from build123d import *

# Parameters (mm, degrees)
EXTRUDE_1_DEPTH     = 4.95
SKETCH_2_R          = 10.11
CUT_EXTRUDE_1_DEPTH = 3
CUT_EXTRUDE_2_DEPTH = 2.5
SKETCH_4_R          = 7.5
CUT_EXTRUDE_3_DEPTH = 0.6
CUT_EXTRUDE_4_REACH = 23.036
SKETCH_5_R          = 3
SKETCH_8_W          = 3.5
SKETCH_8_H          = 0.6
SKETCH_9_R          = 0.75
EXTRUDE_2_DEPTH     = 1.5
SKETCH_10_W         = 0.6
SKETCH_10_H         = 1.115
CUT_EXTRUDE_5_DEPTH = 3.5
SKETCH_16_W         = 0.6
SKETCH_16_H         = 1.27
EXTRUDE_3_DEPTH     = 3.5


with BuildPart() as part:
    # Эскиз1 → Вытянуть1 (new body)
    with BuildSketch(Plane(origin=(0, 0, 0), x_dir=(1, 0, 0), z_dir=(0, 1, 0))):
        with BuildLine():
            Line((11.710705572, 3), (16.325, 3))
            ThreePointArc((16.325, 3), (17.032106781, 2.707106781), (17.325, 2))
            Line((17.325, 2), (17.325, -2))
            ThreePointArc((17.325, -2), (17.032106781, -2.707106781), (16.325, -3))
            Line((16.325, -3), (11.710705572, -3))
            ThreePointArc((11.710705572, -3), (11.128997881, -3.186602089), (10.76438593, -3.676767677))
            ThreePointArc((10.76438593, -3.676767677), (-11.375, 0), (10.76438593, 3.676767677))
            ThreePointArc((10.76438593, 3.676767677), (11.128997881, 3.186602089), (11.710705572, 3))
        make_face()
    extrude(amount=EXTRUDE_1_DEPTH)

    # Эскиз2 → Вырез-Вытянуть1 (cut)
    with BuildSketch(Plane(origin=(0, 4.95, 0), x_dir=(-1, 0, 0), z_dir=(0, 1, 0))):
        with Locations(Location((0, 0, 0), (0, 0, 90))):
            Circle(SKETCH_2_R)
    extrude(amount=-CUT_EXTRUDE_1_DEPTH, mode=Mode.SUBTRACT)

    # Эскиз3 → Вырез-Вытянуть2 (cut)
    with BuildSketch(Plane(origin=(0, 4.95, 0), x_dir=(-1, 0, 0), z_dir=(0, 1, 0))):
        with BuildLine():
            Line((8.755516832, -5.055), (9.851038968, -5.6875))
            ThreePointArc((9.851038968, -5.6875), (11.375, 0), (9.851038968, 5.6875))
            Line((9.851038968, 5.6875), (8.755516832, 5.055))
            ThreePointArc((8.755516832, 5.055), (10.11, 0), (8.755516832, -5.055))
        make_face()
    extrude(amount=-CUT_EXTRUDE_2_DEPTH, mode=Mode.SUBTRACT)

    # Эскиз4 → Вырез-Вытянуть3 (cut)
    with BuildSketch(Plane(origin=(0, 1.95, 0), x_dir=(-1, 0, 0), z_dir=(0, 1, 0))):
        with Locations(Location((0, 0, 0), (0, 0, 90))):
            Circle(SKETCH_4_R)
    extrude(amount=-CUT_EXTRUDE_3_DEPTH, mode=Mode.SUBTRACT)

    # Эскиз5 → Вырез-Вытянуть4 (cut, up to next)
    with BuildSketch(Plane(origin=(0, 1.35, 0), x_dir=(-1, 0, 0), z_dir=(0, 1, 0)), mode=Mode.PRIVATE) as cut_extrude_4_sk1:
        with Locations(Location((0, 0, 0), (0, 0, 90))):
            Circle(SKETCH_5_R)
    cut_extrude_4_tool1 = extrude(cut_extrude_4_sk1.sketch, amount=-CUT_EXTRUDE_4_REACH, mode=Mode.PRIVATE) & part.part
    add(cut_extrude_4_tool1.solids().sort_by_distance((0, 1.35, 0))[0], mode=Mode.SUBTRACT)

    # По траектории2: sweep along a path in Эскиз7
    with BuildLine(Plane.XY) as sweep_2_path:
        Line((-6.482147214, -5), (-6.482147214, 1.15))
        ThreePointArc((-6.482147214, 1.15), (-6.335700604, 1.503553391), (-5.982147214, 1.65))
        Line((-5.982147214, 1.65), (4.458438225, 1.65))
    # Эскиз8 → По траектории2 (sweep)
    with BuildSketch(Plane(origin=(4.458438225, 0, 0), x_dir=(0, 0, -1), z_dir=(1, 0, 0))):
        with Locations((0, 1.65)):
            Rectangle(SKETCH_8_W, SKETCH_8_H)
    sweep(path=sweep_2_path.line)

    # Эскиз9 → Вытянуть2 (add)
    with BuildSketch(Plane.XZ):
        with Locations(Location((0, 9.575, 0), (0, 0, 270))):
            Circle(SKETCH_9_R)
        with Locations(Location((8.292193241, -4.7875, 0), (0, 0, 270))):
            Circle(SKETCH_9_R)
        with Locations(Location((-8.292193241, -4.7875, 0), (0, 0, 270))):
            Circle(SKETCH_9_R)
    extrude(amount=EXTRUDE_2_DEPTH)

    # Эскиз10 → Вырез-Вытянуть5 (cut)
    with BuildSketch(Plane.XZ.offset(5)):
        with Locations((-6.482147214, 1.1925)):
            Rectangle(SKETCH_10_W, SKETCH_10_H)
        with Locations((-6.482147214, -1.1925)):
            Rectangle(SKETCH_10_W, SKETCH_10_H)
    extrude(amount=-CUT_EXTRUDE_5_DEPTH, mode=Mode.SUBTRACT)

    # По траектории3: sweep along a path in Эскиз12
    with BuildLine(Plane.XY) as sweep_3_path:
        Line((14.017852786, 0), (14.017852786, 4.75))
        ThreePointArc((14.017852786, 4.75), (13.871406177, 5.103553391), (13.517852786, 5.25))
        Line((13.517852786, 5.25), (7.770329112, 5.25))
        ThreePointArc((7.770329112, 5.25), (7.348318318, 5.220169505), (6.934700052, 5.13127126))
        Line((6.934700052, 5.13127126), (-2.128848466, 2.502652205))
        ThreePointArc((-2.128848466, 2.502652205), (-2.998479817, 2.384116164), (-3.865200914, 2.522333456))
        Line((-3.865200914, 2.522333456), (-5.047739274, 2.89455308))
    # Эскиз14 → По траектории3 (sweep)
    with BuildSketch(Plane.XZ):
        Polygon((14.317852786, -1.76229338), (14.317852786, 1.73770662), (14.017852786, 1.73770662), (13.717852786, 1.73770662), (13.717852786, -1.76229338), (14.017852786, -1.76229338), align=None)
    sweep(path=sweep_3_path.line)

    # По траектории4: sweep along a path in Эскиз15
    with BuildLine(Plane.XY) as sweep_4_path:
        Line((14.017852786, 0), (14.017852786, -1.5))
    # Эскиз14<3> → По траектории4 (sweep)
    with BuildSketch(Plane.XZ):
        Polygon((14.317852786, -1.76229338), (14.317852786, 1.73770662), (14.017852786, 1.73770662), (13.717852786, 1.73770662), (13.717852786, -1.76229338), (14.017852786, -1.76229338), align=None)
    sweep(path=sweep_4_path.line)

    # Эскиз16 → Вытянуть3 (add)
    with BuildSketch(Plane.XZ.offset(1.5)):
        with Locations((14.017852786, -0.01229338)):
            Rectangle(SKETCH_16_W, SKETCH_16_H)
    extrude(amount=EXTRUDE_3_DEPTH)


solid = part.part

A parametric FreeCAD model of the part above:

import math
import FreeCAD as App
import Part
import Sketcher

V = App.Vector
Q = App.Units.Quantity


def add_polygon(sketch, points):
    """Adds a closed chain of lines whose ends are joined by coincident constraints."""
    first, n = sketch.GeometryCount, len(points)
    for a, b in zip(points, points[1:] + points[:1]):
        sketch.addGeometry(Part.LineSegment(App.Vector(*a, 0), App.Vector(*b, 0)), False)
    for i in range(n):
        sketch.addConstraint(Sketcher.Constraint("Coincident", first + i, 2, first + (i + 1) % n, 1))

doc = App.newDocument("Part")
body = doc.addObject("PartDesign::Body", "Body")

# Sketch on XZ plane
sketch1 = doc.addObject("Sketcher::SketchObject", "Sketch")
body.addObject(sketch1)
sketch1.AttachmentSupport = (doc.XZ_Plane, [""])
sketch1.MapMode = "FlatFace"
sketch1.addGeometry([
    Part.LineSegment(V(16.3, -3, 0), V(11.7, -3, 0)),  # 0
    Part.ArcOfCircle(Part.Circle(V(11.7, -4, 0), V(0, 0, 1), 1), math.radians(90), math.radians(161)),  # 1
    Part.ArcOfCircle(Part.Circle(V(0, 0, 0), V(0, 0, 1), 11.4), math.radians(19), math.radians(341)),  # 2
    Part.ArcOfCircle(Part.Circle(V(11.7, 4, 0), V(0, 0, 1), 1), math.radians(-161), math.radians(-90)),  # 3
    Part.LineSegment(V(11.7, 3, 0), V(16.3, 3, 0)),  # 4
    Part.ArcOfCircle(Part.Circle(V(16.3, 2, 0), V(0, 0, 1), 1), math.radians(0), math.radians(90)),  # 5
    Part.LineSegment(V(17.3, 2, 0), V(17.3, -2, 0)),  # 6
    Part.ArcOfCircle(Part.Circle(V(16.3, -2, 0), V(0, 0, 1), 1), math.radians(-90), math.radians(0)),  # 7
], False)
sketch1.addConstraint([
    Sketcher.Constraint("Tangent", 0, 2, 1, 1),
    Sketcher.Constraint("Tangent", 1, 2, 2, 2),
    Sketcher.Constraint("Tangent", 2, 1, 3, 1),
    Sketcher.Constraint("Tangent", 3, 2, 4, 1),
    Sketcher.Constraint("Tangent", 4, 2, 5, 2),
    Sketcher.Constraint("Tangent", 5, 1, 6, 1),
    Sketcher.Constraint("Tangent", 6, 2, 7, 2),
    Sketcher.Constraint("Tangent", 7, 1, 0, 1),
    Sketcher.Constraint("Horizontal", 0),
    Sketcher.Constraint("Horizontal", 4),
    Sketcher.Constraint("Vertical", 6),
    Sketcher.Constraint("Coincident", 2, 3, -1, 1),
    Sketcher.Constraint("Equal", 1, 3),
    Sketcher.Constraint("Equal", 3, 5),
    Sketcher.Constraint("Equal", 5, 7),
    Sketcher.Constraint("Vertical", 1, 3, 3, 3),
    Sketcher.Constraint("Radius", 1, 1.0),
    Sketcher.Constraint("DistanceY", 6, 2, 6, 1, 4.0),
    Sketcher.Constraint("Radius", 2, 11.375),
    Sketcher.Constraint("DistanceX", -1, 1, 5, 3, 16.325),
])
pad1 = doc.addObject("PartDesign::Pad", "Pad")
body.addObject(pad1)
pad1.Profile = sketch1
pad1.Length = 4.95
pad1.Reversed = True

# Sketch on XZ plane
sketch2 = doc.addObject("Sketcher::SketchObject", "Sketch001")
body.addObject(sketch2)
sketch2.AttachmentSupport = (doc.XZ_Plane, [""])
sketch2.MapMode = "FlatFace"
sketch2.AttachmentOffset = App.Placement(V(0, 0, -4.95), App.Rotation())
sketch2.addGeometry(Part.Circle(V(0, 0, 0), V(0, 0, 1), 10), False)
sketch2.addConstraint([
    Sketcher.Constraint("Coincident", 0, 3, -1, 1),
    Sketcher.Constraint("Diameter", 0, 20.22),
])
pocket1 = doc.addObject("PartDesign::Pocket", "Pocket")
body.addObject(pocket1)
pocket1.Profile = sketch2
pocket1.Length = 3
pocket1.Reversed = True

# Sketch on XZ plane
sketch3 = doc.addObject("Sketcher::SketchObject", "Sketch002")
body.addObject(sketch3)
sketch3.AttachmentSupport = (doc.XZ_Plane, [""])
sketch3.MapMode = "FlatFace"
sketch3.AttachmentOffset = App.Placement(V(0, 0, -4.95), App.Rotation())
sketch3.addGeometry([
    Part.LineSegment(V(-8.8, -5.1, 0), V(-9.9, -5.7, 0)),
    Part.ArcOfCircle(Part.Circle(V(0, 0, 0), V(0, 0, 1), 11.4), math.radians(150), math.radians(210)),
    Part.LineSegment(V(-9.9, 5.7, 0), V(-8.8, 5.1, 0)),
    Part.ArcOfCircle(Part.Circle(V(0, 0, 0), V(0, 0, 1), 10.1), math.radians(150), math.radians(210)),
], False)
sketch3.addConstraint([
    Sketcher.Constraint("Coincident", 0, 2, 1, 2),
    Sketcher.Constraint("Coincident", 1, 1, 2, 1),
    Sketcher.Constraint("Coincident", 2, 2, 3, 1),
    Sketcher.Constraint("Coincident", 3, 2, 0, 1),
    Sketcher.Constraint("Coincident", 1, 3, -1, 1),
    Sketcher.Constraint("Coincident", 3, 3, -1, 1),
    Sketcher.Constraint("Vertical", 0, 2, 1, 1),
    Sketcher.Constraint("Vertical", 2, 2, 3, 2),
    Sketcher.Constraint("Angle", 0, Q("-150 deg")),
    Sketcher.Constraint("Radius", 3, 10.11),
    Sketcher.Constraint("Radius", 1, 11.375),
    Sketcher.Constraint("DistanceY", 3, 2, 2, 2, 10.11),
])
pocket2 = doc.addObject("PartDesign::Pocket", "Pocket001")
body.addObject(pocket2)
pocket2.Profile = sketch3
pocket2.Length = 2.5
pocket2.Reversed = True

# Sketch on XZ plane
sketch4 = doc.addObject("Sketcher::SketchObject", "Sketch003")
body.addObject(sketch4)
sketch4.AttachmentSupport = (doc.XZ_Plane, [""])
sketch4.MapMode = "FlatFace"
sketch4.AttachmentOffset = App.Placement(V(0, 0, -1.95), App.Rotation())
sketch4.addGeometry(Part.Circle(V(0, 0, 0), V(0, 0, 1), 8), False)
sketch4.addConstraint([
    Sketcher.Constraint("Coincident", 0, 3, -1, 1),
    Sketcher.Constraint("Diameter", 0, 15.0),
])
pocket3 = doc.addObject("PartDesign::Pocket", "Pocket002")
body.addObject(pocket3)
pocket3.Profile = sketch4
pocket3.Length = 0.6
pocket3.Reversed = True

# Sketch on XZ plane
sketch5 = doc.addObject("Sketcher::SketchObject", "Sketch004")
body.addObject(sketch5)
sketch5.AttachmentSupport = (doc.XZ_Plane, [""])
sketch5.MapMode = "FlatFace"
sketch5.AttachmentOffset = App.Placement(V(0, 0, -1.35), App.Rotation())
sketch5.addGeometry(Part.Circle(V(0, 0, 0), V(0, 0, 1), 3), False)
sketch5.addConstraint([
    Sketcher.Constraint("Coincident", 0, 3, -1, 1),
    Sketcher.Constraint("Diameter", 0, 6.0),
])
pocket4 = doc.addObject("PartDesign::Pocket", "Pocket003")
body.addObject(pocket4)
pocket4.Profile = sketch5
pocket4.Type = "UpToFirst"
pocket4.Reversed = True

# Sketch on YZ plane
sketch6 = doc.addObject("Sketcher::SketchObject", "Sketch005")
body.addObject(sketch6)
sketch6.AttachmentSupport = (doc.YZ_Plane, [""])
sketch6.MapMode = "FlatFace"
sketch6.AttachmentOffset = App.Placement(V(0, 0, 4.458438), App.Rotation())
add_polygon(sketch6, [(1.9, 1.8), (1.4, 1.8), (1.4, -1.8), (1.9, -1.8)])  # lines 0-3
sketch6.addConstraint([
    Sketcher.Constraint("Horizontal", 0),
    Sketcher.Constraint("Vertical", 1),
    Sketcher.Constraint("Horizontal", 2),
    Sketcher.Constraint("Vertical", 3),
    Sketcher.Constraint("DistanceX", 0, 2, 0, 1, 0.6),
    Sketcher.Constraint("DistanceY", 1, 2, 1, 1, 3.5),
    Sketcher.Constraint("DistanceX", -1, 1, 0, 2, 1.35),
    Sketcher.Constraint("DistanceY", -1, 1, 0, 2, 1.75),
])

# Sketch on XY plane
sketch7 = doc.addObject("Sketcher::SketchObject", "Sketch006")
body.addObject(sketch7)
sketch7.AttachmentSupport = (doc.XY_Plane, [""])
sketch7.MapMode = "FlatFace"
sketch7.addGeometry([
    Part.LineSegment(V(-6.5, -5, 0), V(-6.5, 1.1, 0)),
    Part.ArcOfCircle(Part.Circle(V(-6, 1.1, 0), V(0, 0, 1), 0.5), math.radians(90), math.radians(180)),
    Part.LineSegment(V(-6, 1.6, 0), V(4.5, 1.6, 0)),
], False)
sketch7.addConstraint([
    Sketcher.Constraint("Tangent", 0, 2, 1, 2),
    Sketcher.Constraint("Tangent", 1, 1, 2, 1),
    Sketcher.Constraint("Vertical", 0),
    Sketcher.Constraint("Horizontal", 2),
    Sketcher.Constraint("Radius", 1, 0.5),
    Sketcher.Constraint("DistanceY", 0, 1, -1, 1, 5.0),
    Sketcher.Constraint("DistanceY", 0, 1, 0, 2, 6.15),
    Sketcher.Constraint("DistanceX", 2, 1, 2, 2, 10.440585),
    Sketcher.Constraint("DistanceX", -1, 1, 2, 2, 4.458438),
])
doc.recompute()

additivepipe = doc.addObject("PartDesign::AdditivePipe", "AdditivePipe")
body.addObject(additivepipe)
additivepipe.Profile = sketch6
additivepipe.Spine = (sketch7, ["Edge1", "Edge2", "Edge3"])

# Sketch on XZ plane
sketch8 = doc.addObject("Sketcher::SketchObject", "Sketch007")
body.addObject(sketch8)
sketch8.AttachmentSupport = (doc.XZ_Plane, [""])
sketch8.MapMode = "FlatFace"
sketch8.addGeometry([
    Part.Circle(V(0, 9.6, 0), V(0, 0, 1), 0.8),
    Part.Circle(V(8.3, -4.8, 0), V(0, 0, 1), 0.8),
    Part.Circle(V(-8.3, -4.8, 0), V(0, 0, 1), 0.8),
], False)
sketch8.addConstraint([
    Sketcher.Constraint("Equal", 0, 1),
    Sketcher.Constraint("Equal", 1, 2),
    Sketcher.Constraint("Symmetric", 1, 3, 2, 3, -2),
    Sketcher.Constraint("PointOnObject", 0, 3, -2),
    Sketcher.Constraint("Diameter", 0, 1.5),
    Sketcher.Constraint("DistanceY", -1, 1, 0, 3, 9.575),
    Sketcher.Constraint("DistanceY", 1, 3, -1, 1, 4.7875),
    Sketcher.Constraint("DistanceX", -1, 1, 1, 3, 8.292193),
])
pad2 = doc.addObject("PartDesign::Pad", "Pad001")
body.addObject(pad2)
pad2.Profile = sketch8
pad2.Length = 1.5

# Sketch on XZ plane
sketch9 = doc.addObject("Sketcher::SketchObject", "Sketch008")
body.addObject(sketch9)
sketch9.AttachmentSupport = (doc.XZ_Plane, [""])
sketch9.MapMode = "FlatFace"
sketch9.AttachmentOffset = App.Placement(V(0, 0, 5), App.Rotation())
add_polygon(sketch9, [(-6.8, 1.8), (-6.8, 0.6), (-6.2, 0.6), (-6.2, 1.8)])  # lines 0-3
add_polygon(sketch9, [(-6.8, -0.6), (-6.8, -1.8), (-6.2, -1.8), (-6.2, -0.6)])  # lines 4-7
sketch9.addConstraint([
    Sketcher.Constraint("Vertical", 0),
    Sketcher.Constraint("Horizontal", 1),
    Sketcher.Constraint("Vertical", 2),
    Sketcher.Constraint("Horizontal", 3),
    Sketcher.Constraint("Vertical", 4),
    Sketcher.Constraint("Horizontal", 5),
    Sketcher.Constraint("Vertical", 6),
    Sketcher.Constraint("Horizontal", 7),
    Sketcher.Constraint("Symmetric", 3, 2, 4, 2, -1),
    Sketcher.Constraint("Symmetric", 1, 2, 6, 2, -1),
    Sketcher.Constraint("DistanceX", 1, 1, 1, 2, 0.6),
    Sketcher.Constraint("DistanceY", 4, 2, 3, 2, 3.5),
    Sketcher.Constraint("DistanceY", 0, 2, 0, 1, 1.115),
    Sketcher.Constraint("DistanceX", 0, 2, -1, 1, 6.782147),
])
pocket5 = doc.addObject("PartDesign::Pocket", "Pocket004")
body.addObject(pocket5)
pocket5.Profile = sketch9
pocket5.Length = 3.5

# Sketch on XZ plane
sketch10 = doc.addObject("Sketcher::SketchObject", "Sketch009")
body.addObject(sketch10)
sketch10.AttachmentSupport = (doc.XZ_Plane, [""])
sketch10.MapMode = "FlatFace"
add_polygon(sketch10, [(14.3, -1.8), (14.3, 1.7), (13.7, 1.7), (13.7, -1.8)])  # lines 0-3
sketch10.addConstraint([
    Sketcher.Constraint("Vertical", 0),
    Sketcher.Constraint("Horizontal", 1),
    Sketcher.Constraint("Vertical", 2),
    Sketcher.Constraint("Horizontal", 3),
    Sketcher.Constraint("DistanceX", 1, 2, 1, 1, 0.6),
    Sketcher.Constraint("DistanceY", 0, 1, 0, 2, 3.5),
    Sketcher.Constraint("DistanceX", -1, 1, 0, 2, 14.317853),
    Sketcher.Constraint("DistanceY", -1, 1, 0, 2, 1.737707),
])

# Sketch on XY plane
sketch11 = doc.addObject("Sketcher::SketchObject", "Sketch010")
body.addObject(sketch11)
sketch11.AttachmentSupport = (doc.XY_Plane, [""])
sketch11.MapMode = "FlatFace"
sketch11.addGeometry([
    Part.LineSegment(V(14.017853, 0, 0), V(14.017853, 4.75, 0)),  # 0
    Part.ArcOfCircle(Part.Circle(V(13.517853, 4.75, 0), V(0, 0, 1), 0.5), math.radians(0), math.radians(90)),  # 1
    Part.LineSegment(V(13.517853, 5.25, 0), V(7.770329, 5.25, 0)),  # 2
    Part.ArcOfCircle(Part.Circle(V(7.770329, 2.25, 0), V(0, 0, 1), 3), math.radians(90), math.radians(106.173267)),  # 3
    Part.LineSegment(V(6.9347, 5.131271, 0), V(-2.128848, 2.502652, 0)),  # 4
    Part.ArcOfCircle(Part.Circle(V(-2.964478, 5.383923, 0), V(0, 0, 1), 3), math.radians(-107.472086), math.radians(-73.826733)),  # 5
    Part.LineSegment(V(-3.865201, 2.522333, 0), V(-5.047739, 2.894553, 0)),  # 6
], False)
sketch11.addConstraint([
    Sketcher.Constraint("Coincident", 0, 2, 1, 1),
    Sketcher.Constraint("Coincident", 1, 2, 2, 1),
    Sketcher.Constraint("Coincident", 2, 2, 3, 1),
    Sketcher.Constraint("Coincident", 3, 2, 4, 1),
    Sketcher.Constraint("Coincident", 4, 2, 5, 2),
    Sketcher.Constraint("Coincident", 5, 1, 6, 1),
    Sketcher.Constraint("Vertical", 0),
    Sketcher.Constraint("Horizontal", 2),
    Sketcher.Constraint("PointOnObject", 0, 1, -1),
    Sketcher.Constraint("Radius", 3, 3.0),
    Sketcher.Constraint("Radius", 5, 3.0),
    Sketcher.Constraint("Radius", 1, 0.5),
    Sketcher.Constraint("DistanceY", 0, 1, 0, 2, 4.75),
    Sketcher.Constraint("DistanceY", 3, 3, 0, 2, 2.5),
    Sketcher.Constraint("DistanceX", 1, 2, 0, 2, 0.5),
    Sketcher.Constraint("DistanceX", -1, 1, 3, 2, 6.9347),
    Sketcher.Constraint("DistanceX", 5, 1, -1, 1, 3.865201),
    Sketcher.Constraint("DistanceX", 4, 2, 1, 3, 15.646701),
    Sketcher.Constraint("DistanceY", 4, 2, 6, 2, 0.391901),
    Sketcher.Constraint("Distance", 4, 9.437031),
    Sketcher.Constraint("DistanceX", 2, 2, 2, 1, 5.747524),
    Sketcher.Constraint("DistanceX", -1, 1, 3, 3, 7.770329),
    Sketcher.Constraint("DistanceX", -1, 1, 2, 2, 7.770329),
    Sketcher.Constraint("DistanceX", 6, 2, -1, 1, 5.047739),
    Sketcher.Constraint("DistanceX", 5, 3, 1, 3, 16.48233),
])
doc.recompute()

additivepipe2 = doc.addObject("PartDesign::AdditivePipe", "AdditivePipe001")
body.addObject(additivepipe2)
additivepipe2.Profile = sketch10
additivepipe2.Spine = (sketch11, ["Edge1", "Edge2", "Edge3", "Edge4", "Edge5", "Edge6", "Edge7"])

# Sketch on XZ plane
sketch12 = doc.addObject("Sketcher::SketchObject", "Sketch011")
body.addObject(sketch12)
sketch12.AttachmentSupport = (doc.XZ_Plane, [""])
sketch12.MapMode = "FlatFace"
add_polygon(sketch12, [(14.3, -1.8), (14.3, 1.7), (13.7, 1.7), (13.7, -1.8)])  # lines 0-3
sketch12.addConstraint([
    Sketcher.Constraint("Vertical", 0),
    Sketcher.Constraint("Horizontal", 1),
    Sketcher.Constraint("Vertical", 2),
    Sketcher.Constraint("Horizontal", 3),
    Sketcher.Constraint("DistanceX", 1, 2, 1, 1, 0.6),
    Sketcher.Constraint("DistanceY", 0, 1, 0, 2, 3.5),
    Sketcher.Constraint("DistanceX", -1, 1, 0, 2, 14.317853),
    Sketcher.Constraint("DistanceY", -1, 1, 0, 2, 1.737707),
])

# Sketch on XY plane
sketch13 = doc.addObject("Sketcher::SketchObject", "Sketch012")
body.addObject(sketch13)
sketch13.AttachmentSupport = (doc.XY_Plane, [""])
sketch13.MapMode = "FlatFace"
sketch13.addGeometry(Part.LineSegment(V(14, 0, 0), V(14, -1.5, 0)), False)
sketch13.addConstraint([
    Sketcher.Constraint("Vertical", 0),
    Sketcher.Constraint("PointOnObject", 0, 1, -1),
    Sketcher.Constraint("DistanceY", 0, 2, 0, 1, 1.5),
    Sketcher.Constraint("DistanceX", -1, 1, 0, 1, 14.017853),
])
doc.recompute()

additivepipe3 = doc.addObject("PartDesign::AdditivePipe", "AdditivePipe002")
body.addObject(additivepipe3)
additivepipe3.Profile = sketch12
additivepipe3.Spine = (sketch13, ["Edge1"])

# Sketch on XZ plane
sketch14 = doc.addObject("Sketcher::SketchObject", "Sketch013")
body.addObject(sketch14)
sketch14.AttachmentSupport = (doc.XZ_Plane, [""])
sketch14.MapMode = "FlatFace"
sketch14.AttachmentOffset = App.Placement(V(0, 0, 1.5), App.Rotation())
add_polygon(sketch14, [(13.7, 0.6), (13.7, -0.6), (14.3, -0.6), (14.3, 0.6)])  # lines 0-3
sketch14.addConstraint([
    Sketcher.Constraint("Vertical", 0),
    Sketcher.Constraint("Horizontal", 1),
    Sketcher.Constraint("Vertical", 2),
    Sketcher.Constraint("Horizontal", 3),
    Sketcher.Constraint("DistanceX", 1, 1, 1, 2, 0.6),
    Sketcher.Constraint("DistanceY", 0, 2, 0, 1, 1.27),
    Sketcher.Constraint("DistanceX", -1, 1, 0, 2, 13.717853),
    Sketcher.Constraint("DistanceY", 0, 2, -1, 1, 0.647293),
])
pad3 = doc.addObject("PartDesign::Pad", "Pad002")
body.addObject(pad3)
pad3.Profile = sketch14
pad3.Length = 3.5

doc.recompute()
